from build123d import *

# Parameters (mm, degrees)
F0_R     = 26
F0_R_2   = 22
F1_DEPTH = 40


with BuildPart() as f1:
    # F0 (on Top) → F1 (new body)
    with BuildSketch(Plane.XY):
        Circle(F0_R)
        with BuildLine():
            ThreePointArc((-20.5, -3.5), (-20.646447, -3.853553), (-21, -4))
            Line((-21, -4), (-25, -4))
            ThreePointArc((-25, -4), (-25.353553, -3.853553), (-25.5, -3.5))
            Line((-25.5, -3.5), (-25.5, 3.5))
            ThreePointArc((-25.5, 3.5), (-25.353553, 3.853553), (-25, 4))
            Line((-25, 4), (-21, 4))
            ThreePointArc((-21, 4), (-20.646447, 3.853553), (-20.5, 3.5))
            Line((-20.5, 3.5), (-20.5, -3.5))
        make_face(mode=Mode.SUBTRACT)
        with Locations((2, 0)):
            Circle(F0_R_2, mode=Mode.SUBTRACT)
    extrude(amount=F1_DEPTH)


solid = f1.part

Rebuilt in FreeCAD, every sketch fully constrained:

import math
import FreeCAD as App
import Part
import Sketcher

doc = App.newDocument("Part")
params = doc.addObject("Spreadsheet::Sheet", "Params")
for row, (alias, value) in enumerate([
    ("sketch1_diameter", "52 mm"),
    ("sketch1_diameter2", "44 mm"),
    ("sketch1_radius", "0.500001 mm"),
    ("sketch1_width", "4 mm"),
    ("sketch1_height", "7 mm"),
    ("pad1_length", "40 mm"),
], start=1):
    params.set(f"A{row}", alias)
    params.set(f"B{row}", "=" + value)
    params.setAlias(f"B{row}", alias)

body = doc.addObject("PartDesign::Body", "Body")

# Sketch on XY plane
sketch1 = body.newObject("Sketcher::SketchObject", "Sketch")
sketch1.AttachmentSupport = (doc.getObject("XY_Plane"), [""])
sketch1.MapMode = "FlatFace"
sketch1.addGeometry([
    Part.Circle(App.Vector(0, 0, 0), App.Vector(0, 0, 1), 26),  # 0
    Part.LineSegment(App.Vector(-20.5, 3.5, 0), App.Vector(-20.5, -3.5, 0)),  # 1
    Part.ArcOfCircle(Part.Circle(App.Vector(-21, -3.5, 0), App.Vector(0, 0, 1), 0.5), math.radians(-90), math.radians(0)),  # 2
    Part.LineSegment(App.Vector(-21, -4, 0), App.Vector(-25, -4, 0)),  # 3
    Part.ArcOfCircle(Part.Circle(App.Vector(-25, -3.5, 0), App.Vector(0, 0, 1), 0.5), math.radians(-180), math.radians(-90)),  # 4
    Part.LineSegment(App.Vector(-25.5, -3.5, 0), App.Vector(-25.5, 3.5, 0)),  # 5
    Part.ArcOfCircle(Part.Circle(App.Vector(-25, 3.5, 0), App.Vector(0, 0, 1), 0.5), math.radians(90), math.radians(180)),  # 6
    Part.LineSegment(App.Vector(-25, 4, 0), App.Vector(-21, 4, 0)),  # 7
    Part.ArcOfCircle(Part.Circle(App.Vector(-21, 3.5, 0), App.Vector(0, 0, 1), 0.5), math.radians(0), math.radians(90)),  # 8
    Part.Circle(App.Vector(2, 0, 0), App.Vector(0, 0, 1), 22),  # 9
], False)
sketch1.addConstraint([
    Sketcher.Constraint("Coincident", 1, 2, 2, 2),
    Sketcher.Constraint("Coincident", 2, 1, 3, 1),
    Sketcher.Constraint("Coincident", 3, 2, 4, 2),
    Sketcher.Constraint("Coincident", 4, 1, 5, 1),
    Sketcher.Constraint("Coincident", 5, 2, 6, 2),
    Sketcher.Constraint("Coincident", 6, 1, 7, 1),
    Sketcher.Constraint("Coincident", 7, 2, 8, 2),
    Sketcher.Constraint("Coincident", 8, 1, 1, 1),
    Sketcher.Constraint("Vertical", 1),
    Sketcher.Constraint("Horizontal", 3),
    Sketcher.Constraint("Vertical", 5),
    Sketcher.Constraint("Horizontal", 7),
    Sketcher.Constraint("Coincident", 0, 3, -1, 1),
    Sketcher.Constraint("Equal", 2, 4),
    Sketcher.Constraint("Equal", 4, 6),
    Sketcher.Constraint("Equal", 6, 8),
    Sketcher.Constraint("Symmetric", 3, 2, 6, 1, -1),
    Sketcher.Constraint("PointOnObject", 9, 3, -1),
    Sketcher.Constraint("Horizontal", 4, 3, 1, 2),
    Sketcher.Constraint("Horizontal", 1, 2, 4, 1),
    Sketcher.Constraint("Horizontal", 8, 3, 5, 2),
    Sketcher.Constraint("Horizontal", 5, 2, 8, 1),
    Sketcher.Constraint("Vertical", 8, 3, 2, 1),
    Sketcher.Constraint("Vertical", 6, 3, 3, 2),
    Sketcher.Constraint("Vertical", 2, 1, 7, 2),
    Sketcher.Constraint("Diameter", 0, 52.0),
    Sketcher.Constraint("Diameter", 9, 44.0),
    Sketcher.Constraint("Radius", 2, 0.500001),
    Sketcher.Constraint("DistanceX", 3, 2, 3, 1, 4.0),
    Sketcher.Constraint("DistanceY", 1, 2, 1, 1, 7.0),
    Sketcher.Constraint("DistanceX", 2, 3, -1, 1, 21.000001),
    Sketcher.Constraint("DistanceX", -1, 1, 9, 3, 2.0),
])
sketch1.setExpression("Constraints[25]", "Params.sketch1_diameter")
sketch1.setExpression("Constraints[26]", "Params.sketch1_diameter2")
sketch1.setExpression("Constraints[27]", "Params.sketch1_radius")
sketch1.setExpression("Constraints[28]", "Params.sketch1_width")
sketch1.setExpression("Constraints[29]", "Params.sketch1_height")
pad1 = body.newObject("PartDesign::Pad", "Pad")
pad1.Profile = sketch1
pad1.setExpression("Length", "Params.pad1_length")

doc.recompute()
